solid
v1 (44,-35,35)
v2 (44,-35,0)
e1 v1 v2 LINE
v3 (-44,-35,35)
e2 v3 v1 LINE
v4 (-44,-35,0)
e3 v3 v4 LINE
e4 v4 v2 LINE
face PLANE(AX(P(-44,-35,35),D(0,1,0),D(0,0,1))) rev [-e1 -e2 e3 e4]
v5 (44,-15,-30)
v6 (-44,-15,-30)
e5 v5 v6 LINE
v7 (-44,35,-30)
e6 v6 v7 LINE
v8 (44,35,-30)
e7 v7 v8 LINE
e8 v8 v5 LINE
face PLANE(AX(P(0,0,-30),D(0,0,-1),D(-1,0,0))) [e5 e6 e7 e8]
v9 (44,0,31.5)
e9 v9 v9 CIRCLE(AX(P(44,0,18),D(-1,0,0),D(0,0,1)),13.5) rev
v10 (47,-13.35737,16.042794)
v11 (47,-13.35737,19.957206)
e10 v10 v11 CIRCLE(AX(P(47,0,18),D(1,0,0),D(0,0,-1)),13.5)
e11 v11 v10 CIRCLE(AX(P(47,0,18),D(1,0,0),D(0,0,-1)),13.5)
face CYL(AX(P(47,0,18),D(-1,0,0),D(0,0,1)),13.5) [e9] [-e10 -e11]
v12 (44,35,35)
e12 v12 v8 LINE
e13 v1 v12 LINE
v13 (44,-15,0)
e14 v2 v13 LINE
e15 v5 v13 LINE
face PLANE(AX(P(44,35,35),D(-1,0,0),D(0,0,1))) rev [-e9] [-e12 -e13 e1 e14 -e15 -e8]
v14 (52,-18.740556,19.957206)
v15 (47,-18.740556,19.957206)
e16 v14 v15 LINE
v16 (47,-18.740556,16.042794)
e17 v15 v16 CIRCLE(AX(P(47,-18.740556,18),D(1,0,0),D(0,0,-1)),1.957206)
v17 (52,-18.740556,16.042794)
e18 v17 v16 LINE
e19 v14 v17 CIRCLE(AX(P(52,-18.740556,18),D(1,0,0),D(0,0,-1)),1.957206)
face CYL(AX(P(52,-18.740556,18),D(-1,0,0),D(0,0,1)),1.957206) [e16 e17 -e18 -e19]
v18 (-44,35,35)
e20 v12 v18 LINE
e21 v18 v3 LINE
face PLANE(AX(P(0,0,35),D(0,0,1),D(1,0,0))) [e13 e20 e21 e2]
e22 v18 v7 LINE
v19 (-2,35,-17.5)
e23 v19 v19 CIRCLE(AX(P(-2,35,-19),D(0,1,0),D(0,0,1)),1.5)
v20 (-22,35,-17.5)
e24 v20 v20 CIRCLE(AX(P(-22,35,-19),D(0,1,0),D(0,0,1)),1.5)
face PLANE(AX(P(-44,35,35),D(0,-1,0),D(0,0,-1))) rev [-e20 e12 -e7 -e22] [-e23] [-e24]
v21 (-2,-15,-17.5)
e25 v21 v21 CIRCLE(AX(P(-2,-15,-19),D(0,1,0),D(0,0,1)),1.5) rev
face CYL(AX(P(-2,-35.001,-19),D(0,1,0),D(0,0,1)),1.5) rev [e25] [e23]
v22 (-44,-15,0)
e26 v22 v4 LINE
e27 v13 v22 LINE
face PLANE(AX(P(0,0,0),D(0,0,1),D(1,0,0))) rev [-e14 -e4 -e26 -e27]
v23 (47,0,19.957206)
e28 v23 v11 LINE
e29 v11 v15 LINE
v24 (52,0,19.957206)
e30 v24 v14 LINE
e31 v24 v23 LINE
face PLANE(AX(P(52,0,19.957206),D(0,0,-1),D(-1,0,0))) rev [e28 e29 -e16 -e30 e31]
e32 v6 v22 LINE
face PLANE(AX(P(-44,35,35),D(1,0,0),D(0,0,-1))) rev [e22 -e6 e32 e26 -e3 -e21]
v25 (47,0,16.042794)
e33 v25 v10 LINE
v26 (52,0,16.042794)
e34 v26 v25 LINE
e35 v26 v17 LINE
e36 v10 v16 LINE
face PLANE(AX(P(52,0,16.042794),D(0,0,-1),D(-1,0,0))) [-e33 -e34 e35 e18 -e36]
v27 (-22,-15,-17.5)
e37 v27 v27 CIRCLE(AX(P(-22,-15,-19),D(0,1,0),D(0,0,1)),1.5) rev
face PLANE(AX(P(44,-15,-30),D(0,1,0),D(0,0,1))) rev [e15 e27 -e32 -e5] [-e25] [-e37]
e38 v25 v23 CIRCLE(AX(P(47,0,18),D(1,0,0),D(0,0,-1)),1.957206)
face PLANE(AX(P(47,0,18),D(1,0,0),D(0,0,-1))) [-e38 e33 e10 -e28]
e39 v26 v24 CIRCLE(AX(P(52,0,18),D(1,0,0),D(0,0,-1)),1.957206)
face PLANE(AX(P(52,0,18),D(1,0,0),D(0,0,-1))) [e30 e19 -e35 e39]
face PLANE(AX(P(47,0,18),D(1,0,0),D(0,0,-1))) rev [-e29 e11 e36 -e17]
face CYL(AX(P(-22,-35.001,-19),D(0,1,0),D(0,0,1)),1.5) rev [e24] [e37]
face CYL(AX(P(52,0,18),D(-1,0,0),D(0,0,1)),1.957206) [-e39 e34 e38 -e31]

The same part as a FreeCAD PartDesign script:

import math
import FreeCAD as App
import Part
import Sketcher


def add_polygon(sketch, points):
    """Adds a closed chain of lines whose ends are joined by coincident constraints."""
    first, n = sketch.GeometryCount, len(points)
    for a, b in zip(points, points[1:] + points[:1]):
        sketch.addGeometry(Part.LineSegment(App.Vector(*a, 0), App.Vector(*b, 0)), False)
    for i in range(n):
        sketch.addConstraint(Sketcher.Constraint("Coincident", first + i, 2, first + (i + 1) % n, 1))

doc = App.newDocument("Part")
body = doc.addObject("PartDesign::Body", "Body")

# Sketch on XY plane
sketch1 = doc.addObject("Sketcher::SketchObject", "Sketch")
body.addObject(sketch1)
sketch1.AttachmentSupport = (doc.XY_Plane, [""])
sketch1.MapMode = "FlatFace"
add_polygon(sketch1, [(-44, 35), (-44, -35), (44, -35), (44, 35)])  # lines 0-3
sketch1.addConstraint([
    Sketcher.Constraint("Vertical", 0),
    Sketcher.Constraint("Horizontal", 1),
    Sketcher.Constraint("Vertical", 2),
    Sketcher.Constraint("Horizontal", 3),
    Sketcher.Constraint("Symmetric", 0, 2, 2, 2, -1, 1),
    Sketcher.Constraint("DistanceX", 1, 1, 1, 2, 88.0),
    Sketcher.Constraint("DistanceY", 0, 2, 0, 1, 70.0),
])
pad1 = doc.addObject("PartDesign::Pad", "Pad")
body.addObject(pad1)
pad1.Profile = sketch1
pad1.Length = 35

# Sketch on XY plane
sketch2 = doc.addObject("Sketcher::SketchObject", "Sketch001")
body.addObject(sketch2)
sketch2.AttachmentSupport = (doc.XY_Plane, [""])
sketch2.MapMode = "FlatFace"
add_polygon(sketch2, [(44, 35), (44, -15), (-44, -15), (-44, 35)])  # lines 0-3
sketch2.addConstraint([
    Sketcher.Constraint("Vertical", 0),
    Sketcher.Constraint("Horizontal", 1),
    Sketcher.Constraint("Vertical", 2),
    Sketcher.Constraint("Horizontal", 3),
    Sketcher.Constraint("DistanceX", 1, 2, 1, 1, 88.0),
    Sketcher.Constraint("DistanceY", 0, 2, 0, 1, 50.0),
    Sketcher.Constraint("DistanceX", -1, 1, 0, 2, 44.0),
    Sketcher.Constraint("DistanceY", 0, 2, -1, 1, 15.0),
])
pad2 = doc.addObject("PartDesign::Pad", "Pad001")
body.addObject(pad2)
pad2.Profile = sketch2
pad2.Length = 30
pad2.Reversed = True

# Sketch on YZ plane
sketch3 = doc.addObject("Sketcher::SketchObject", "Sketch002")
body.addObject(sketch3)
sketch3.AttachmentSupport = (doc.YZ_Plane, [""])
sketch3.MapMode = "FlatFace"
sketch3.AttachmentOffset = App.Placement(App.Vector(0, 0, 44), App.Rotation())
sketch3.addGeometry(Part.Circle(App.Vector(0, 18, 0), App.Vector(0, 0, 1), 14), False)
sketch3.addConstraint([
    Sketcher.Constraint("PointOnObject", 0, 3, -2),
    Sketcher.Constraint("Diameter", 0, 27.0),
    Sketcher.Constraint("DistanceY", -1, 1, 0, 3, 18.0),
])
pad3 = doc.addObject("PartDesign::Pad", "Pad002")
body.addObject(pad3)
pad3.Profile = sketch3
pad3.Length = 3

# Sketch on YZ plane
sketch4 = doc.addObject("Sketcher::SketchObject", "Sketch003")
body.addObject(sketch4)
sketch4.AttachmentSupport = (doc.YZ_Plane, [""])
sketch4.MapMode = "FlatFace"
sketch4.AttachmentOffset = App.Placement(App.Vector(0, 0, 47), App.Rotation())
sketch4.addGeometry([
    Part.LineSegment(App.Vector(-18.7, 16, 0), App.Vector(0, 16, 0)),
    Part.ArcOfCircle(Part.Circle(App.Vector(0, 18, 0), App.Vector(0, 0, 1), 2), math.radians(-90), math.radians(90)),
    Part.LineSegment(App.Vector(0, 20, 0), App.Vector(-18.7, 20, 0)),
    Part.ArcOfCircle(Part.Circle(App.Vector(-18.7, 18, 0), App.Vector(0, 0, 1), 2), math.radians(90), math.radians(270)),
], False)
sketch4.addConstraint([
    Sketcher.Constraint("Tangent", 0, 2, 1, 1),
    Sketcher.Constraint("Tangent", 1, 2, 2, 1),
    Sketcher.Constraint("Tangent", 2, 2, 3, 1),
    Sketcher.Constraint("Tangent", 3, 2, 0, 1),
    Sketcher.Constraint("Horizontal", 0),
    Sketcher.Constraint("Horizontal", 2),
    Sketcher.Constraint("PointOnObject", 1, 3, -2),
    Sketcher.Constraint("DistanceY", -1, 1, 1, 3, 18.0),
    Sketcher.Constraint("Radius", 1, 1.957206),
    Sketcher.Constraint("DistanceX", 0, 1, 0, 2, 18.740556),
])
pad4 = doc.addObject("PartDesign::Pad", "Pad003")
body.addObject(pad4)
pad4.Profile = sketch4
pad4.Length = 5

# Sketch on XZ plane
sketch5 = doc.addObject("Sketcher::SketchObject", "Sketch004")
body.addObject(sketch5)
sketch5.AttachmentSupport = (doc.XZ_Plane, [""])
sketch5.MapMode = "FlatFace"
sketch5.AttachmentOffset = App.Placement(App.Vector(0, 0, -35), App.Rotation())
sketch5.addGeometry(Part.Circle(App.Vector(-22, -19, 0), App.Vector(0, 0, 1), 1.5), False)
sketch5.addConstraint([
    Sketcher.Constraint("Diameter", 0, 3.0),
    Sketcher.Constraint("DistanceX", 0, 3, -1, 1, 22.0),
    Sketcher.Constraint("DistanceY", 0, 3, -1, 1, 19.0),
])
pocket1 = doc.addObject("PartDesign::Pocket", "Pocket")
body.addObject(pocket1)
pocket1.Profile = sketch5
pocket1.Type = "UpToFirst"
pocket1.Reversed = True

# Sketch on XZ plane
sketch6 = doc.addObject("Sketcher::SketchObject", "Sketch005")
body.addObject(sketch6)
sketch6.AttachmentSupport = (doc.XZ_Plane, [""])
sketch6.MapMode = "FlatFace"
sketch6.AttachmentOffset = App.Placement(App.Vector(0, 0, -35), App.Rotation())
sketch6.addGeometry(Part.Circle(App.Vector(-2, -19, 0), App.Vector(0, 0, 1), 1.5), False)
sketch6.addConstraint([
    Sketcher.Constraint("Diameter", 0, 3.0),
    Sketcher.Constraint("DistanceX", 0, 3, -1, 1, 2.0),
    Sketcher.Constraint("DistanceY", 0, 3, -1, 1, 19.0),
])
pocket2 = doc.addObject("PartDesign::Pocket", "Pocket001")
body.addObject(pocket2)
pocket2.Profile = sketch6
pocket2.Type = "UpToFirst"
pocket2.Reversed = True

doc.recompute()
